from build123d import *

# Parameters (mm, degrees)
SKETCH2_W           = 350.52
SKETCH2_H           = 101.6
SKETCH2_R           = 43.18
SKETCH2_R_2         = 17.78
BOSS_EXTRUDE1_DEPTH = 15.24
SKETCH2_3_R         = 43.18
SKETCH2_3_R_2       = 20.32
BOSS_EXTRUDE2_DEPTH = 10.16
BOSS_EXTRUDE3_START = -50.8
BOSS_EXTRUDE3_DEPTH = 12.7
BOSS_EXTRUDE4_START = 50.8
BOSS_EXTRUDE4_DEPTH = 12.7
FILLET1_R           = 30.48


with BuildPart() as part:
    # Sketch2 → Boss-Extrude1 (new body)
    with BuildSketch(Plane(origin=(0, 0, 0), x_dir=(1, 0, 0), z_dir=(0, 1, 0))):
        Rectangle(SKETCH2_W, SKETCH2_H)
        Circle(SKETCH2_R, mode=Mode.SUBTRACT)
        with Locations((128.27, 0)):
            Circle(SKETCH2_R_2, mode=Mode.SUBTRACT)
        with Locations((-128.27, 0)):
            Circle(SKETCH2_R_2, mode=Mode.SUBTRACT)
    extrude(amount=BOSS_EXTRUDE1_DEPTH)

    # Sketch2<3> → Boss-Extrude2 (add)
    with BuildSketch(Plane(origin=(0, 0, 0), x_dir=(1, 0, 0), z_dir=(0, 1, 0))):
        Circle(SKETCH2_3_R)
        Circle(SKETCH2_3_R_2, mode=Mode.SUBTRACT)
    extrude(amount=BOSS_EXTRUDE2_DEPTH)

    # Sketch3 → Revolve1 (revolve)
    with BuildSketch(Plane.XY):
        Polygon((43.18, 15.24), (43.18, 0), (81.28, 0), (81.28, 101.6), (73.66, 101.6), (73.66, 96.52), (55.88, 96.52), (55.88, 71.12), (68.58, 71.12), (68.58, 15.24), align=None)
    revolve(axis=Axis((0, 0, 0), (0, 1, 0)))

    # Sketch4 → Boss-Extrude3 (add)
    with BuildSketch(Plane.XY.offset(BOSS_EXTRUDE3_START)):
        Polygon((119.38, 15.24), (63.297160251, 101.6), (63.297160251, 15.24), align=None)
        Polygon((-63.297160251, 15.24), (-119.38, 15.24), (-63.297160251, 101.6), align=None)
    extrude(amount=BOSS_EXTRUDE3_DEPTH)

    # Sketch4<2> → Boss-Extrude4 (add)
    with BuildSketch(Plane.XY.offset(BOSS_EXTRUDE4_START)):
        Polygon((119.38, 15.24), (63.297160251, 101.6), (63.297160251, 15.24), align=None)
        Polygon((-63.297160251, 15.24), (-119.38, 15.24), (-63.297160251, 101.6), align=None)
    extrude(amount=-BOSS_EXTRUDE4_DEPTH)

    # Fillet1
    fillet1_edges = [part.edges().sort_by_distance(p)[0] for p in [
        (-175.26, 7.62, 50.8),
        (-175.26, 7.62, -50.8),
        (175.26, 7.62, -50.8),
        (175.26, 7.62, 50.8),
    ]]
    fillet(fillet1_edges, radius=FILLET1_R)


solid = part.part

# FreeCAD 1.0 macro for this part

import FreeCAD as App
import Part
import Sketcher
Q = App.Units.Quantity


def edges_at(feature, points):
    """Names of the edges that pass closest to the given points."""
    edges = feature.Shape.Edges
    near = lambda p: min(range(len(edges)), key=lambda i: edges[i].distToShape(Part.Vertex(*p))[0])
    return sorted({f"Edge{near(p) + 1}" for p in points})


def add_polygon(sketch, points):
    """Adds a closed chain of lines whose ends are joined by coincident constraints."""
    first, n = sketch.GeometryCount, len(points)
    for a, b in zip(points, points[1:] + points[:1]):
        sketch.addGeometry(Part.LineSegment(App.Vector(*a, 0), App.Vector(*b, 0)), False)
    for i in range(n):
        sketch.addConstraint(Sketcher.Constraint("Coincident", first + i, 2, first + (i + 1) % n, 1))

doc = App.newDocument("Part")
body = doc.addObject("PartDesign::Body", "Body")

sketch1 = body.newObject("Sketcher::SketchObject", "Sketch")
sketch1.AttachmentSupport = (doc.getObject("XZ_Plane"), [""])
sketch1.MapMode = "FlatFace"
add_polygon(sketch1, [(-175, -51), (-175, 51), (175, 51), (175, -51)])
sketch1.addGeometry(Part.Circle(App.Vector(-128, 0, 0), App.Vector(0, 0, 1), 18), False)
sketch1.addGeometry(Part.Circle(App.Vector(0, 0, 0), App.Vector(0, 0, 1), 43), False)
sketch1.addGeometry(Part.Circle(App.Vector(128, 0, 0), App.Vector(0, 0, 1), 18), False)
sketch1.addConstraint(Sketcher.Constraint("Vertical", 0))
sketch1.addConstraint(Sketcher.Constraint("Horizontal", 1))
sketch1.addConstraint(Sketcher.Constraint("Vertical", 2))
sketch1.addConstraint(Sketcher.Constraint("Horizontal", 3))
sketch1.addConstraint(Sketcher.Constraint("Coincident", 5, 3, -1, 1))
sketch1.addConstraint(Sketcher.Constraint("Equal", 4, 6))
sketch1.addConstraint(Sketcher.Constraint("Symmetric", 4, 3, 6, 3, -1, 1))
sketch1.addConstraint(Sketcher.Constraint("Symmetric", 0, 2, 2, 2, -1, 1))
sketch1.addConstraint(Sketcher.Constraint("PointOnObject", 4, 3, -1))
sketch1.addConstraint(Sketcher.Constraint("Diameter", 4, Q("1.4 in")))
sketch1.addConstraint(Sketcher.Constraint("Diameter", 5, Q("3.4 in")))
sketch1.addConstraint(Sketcher.Constraint("DistanceY", 0, 1, 0, 2, Q("4 in")))
sketch1.addConstraint(Sketcher.Constraint("DistanceX", 1, 1, 1, 2, Q("13.8 in")))
sketch1.addConstraint(Sketcher.Constraint("DistanceX", 4, 3, 6, 3, Q("10.1 in")))
pad1 = body.newObject("PartDesign::Pad", "Pad")
pad1.Profile = sketch1
pad1.Length = Q("0.6 in")
pad1.Reversed = True

sketch2 = body.newObject("Sketcher::SketchObject", "Sketch001")
sketch2.AttachmentSupport = (doc.getObject("XZ_Plane"), [""])
sketch2.MapMode = "FlatFace"
sketch2.addGeometry(Part.Circle(App.Vector(0, 0, 0), App.Vector(0, 0, 1), 43), False)
sketch2.addGeometry(Part.Circle(App.Vector(0, 0, 0), App.Vector(0, 0, 1), 20), False)
sketch2.addConstraint(Sketcher.Constraint("Coincident", 0, 3, -1, 1))
sketch2.addConstraint(Sketcher.Constraint("Coincident", 1, 3, -1, 1))
sketch2.addConstraint(Sketcher.Constraint("Diameter", 0, Q("3.4 in")))
sketch2.addConstraint(Sketcher.Constraint("Diameter", 1, Q("1.6 in")))
pad2 = body.newObject("PartDesign::Pad", "Pad001")
pad2.Profile = sketch2
pad2.Length = Q("0.4 in")
pad2.Reversed = True

sketch3 = body.newObject("Sketcher::SketchObject", "Sketch002")
sketch3.AttachmentSupport = (doc.getObject("XY_Plane"), [""])
sketch3.MapMode = "FlatFace"
add_polygon(sketch3, [(43, 15), (43, 0), (81, 0), (81, 102), (74, 102), (74, 97), (56, 97), (56, 71), (69, 71), (69, 15)])
sketch3.addConstraint(Sketcher.Constraint("Vertical", 0))
sketch3.addConstraint(Sketcher.Constraint("Horizontal", 1))
sketch3.addConstraint(Sketcher.Constraint("Vertical", 2))
sketch3.addConstraint(Sketcher.Constraint("Horizontal", 3))
sketch3.addConstraint(Sketcher.Constraint("Vertical", 4))
sketch3.addConstraint(Sketcher.Constraint("Horizontal", 5))
sketch3.addConstraint(Sketcher.Constraint("Vertical", 6))
sketch3.addConstraint(Sketcher.Constraint("Horizontal", 7))
sketch3.addConstraint(Sketcher.Constraint("Vertical", 8))
sketch3.addConstraint(Sketcher.Constraint("Horizontal", 9))
sketch3.addConstraint(Sketcher.Constraint("PointOnObject", 0, 2, -1))
sketch3.addConstraint(Sketcher.Constraint("Equal", 9, 6))
sketch3.addConstraint(Sketcher.Constraint("DistanceX", 9, 2, 9, 1, Q("1 in")))
sketch3.addConstraint(Sketcher.Constraint("DistanceY", 2, 1, 2, 2, Q("4 in")))
sketch3.addConstraint(Sketcher.Constraint("DistanceX", 1, 1, 1, 2, Q("1.5 in")))
sketch3.addConstraint(Sketcher.Constraint("DistanceX", 3, 2, 3, 1, Q("0.3 in")))
sketch3.addConstraint(Sketcher.Constraint("DistanceX", 5, 2, 5, 1, Q("0.7 in")))
sketch3.addConstraint(Sketcher.Constraint("DistanceY", 0, 2, 0, 1, Q("0.6 in")))
sketch3.addConstraint(Sketcher.Constraint("DistanceY", 4, 2, 4, 1, Q("0.2 in")))
sketch3.addConstraint(Sketcher.Constraint("DistanceX", -1, 1, 0, 2, Q("1.7 in")))
revolution = body.newObject("PartDesign::Revolution", "Revolution")
revolution.Profile = sketch3
revolution.ReferenceAxis = (sketch3, ["V_Axis"])
revolution.Angle = 360

sketch4 = body.newObject("Sketcher::SketchObject", "Sketch003")
sketch4.AttachmentSupport = (doc.getObject("XY_Plane"), [""])
sketch4.MapMode = "FlatFace"
sketch4.AttachmentOffset = App.Placement(App.Vector(0, 0, -2 * 25.4), App.Rotation())
add_polygon(sketch4, [(119, 15), (63, 102), (63, 15)])
add_polygon(sketch4, [(-119, 15), (-63, 15), (-63, 102)])
sketch4.addConstraint(Sketcher.Constraint("Vertical", 1))
sketch4.addConstraint(Sketcher.Constraint("Horizontal", 2))
sketch4.addConstraint(Sketcher.Constraint("Horizontal", 3))
sketch4.addConstraint(Sketcher.Constraint("Vertical", 4))
sketch4.addConstraint(Sketcher.Constraint("Symmetric", 1, 2, 3, 2, -2))
sketch4.addConstraint(Sketcher.Constraint("Horizontal", 0, 2, 4, 2))
sketch4.addConstraint(Sketcher.Constraint("Equal", 2, 3))
sketch4.addConstraint(Sketcher.Constraint("DistanceY", 1, 2, 1, 1, Q("3.4 in")))
sketch4.addConstraint(Sketcher.Constraint("DistanceY", -1, 1, 0, 2, Q("4 in")))
sketch4.addConstraint(Sketcher.Constraint("Angle", 0, Q("123 deg")))
sketch4.addConstraint(Sketcher.Constraint("DistanceX", -1, 1, 2, 2, Q("4.7 in")))
pad3 = body.newObject("PartDesign::Pad", "Pad002")
pad3.Profile = sketch4
pad3.Length = Q("0.5 in")

sketch5 = body.newObject("Sketcher::SketchObject", "Sketch004")
sketch5.AttachmentSupport = (doc.getObject("XY_Plane"), [""])
sketch5.MapMode = "FlatFace"
sketch5.AttachmentOffset = App.Placement(App.Vector(0, 0, 2 * 25.4), App.Rotation())
add_polygon(sketch5, [(119, 15), (63, 102), (63, 15)])
add_polygon(sketch5, [(-119, 15), (-63, 15), (-63, 102)])
sketch5.addConstraint(Sketcher.Constraint("Vertical", 1))
sketch5.addConstraint(Sketcher.Constraint("Horizontal", 2))
sketch5.addConstraint(Sketcher.Constraint("Horizontal", 3))
sketch5.addConstraint(Sketcher.Constraint("Vertical", 4))
sketch5.addConstraint(Sketcher.Constraint("Symmetric", 1, 2, 3, 2, -2))
sketch5.addConstraint(Sketcher.Constraint("Horizontal", 0, 2, 4, 2))
sketch5.addConstraint(Sketcher.Constraint("Equal", 2, 3))
sketch5.addConstraint(Sketcher.Constraint("DistanceY", 1, 2, 1, 1, Q("3.4 in")))
sketch5.addConstraint(Sketcher.Constraint("DistanceY", -1, 1, 0, 2, Q("4 in")))
sketch5.addConstraint(Sketcher.Constraint("Angle", 0, Q("123 deg")))
sketch5.addConstraint(Sketcher.Constraint("DistanceX", -1, 1, 2, 2, Q("4.7 in")))
pad4 = body.newObject("PartDesign::Pad", "Pad003")
pad4.Profile = sketch5
pad4.Length = Q("0.5 in")
pad4.Reversed = True
doc.recompute()

fillet = body.newObject("PartDesign::Fillet", "Fillet")
fillet.Base = (pad4, edges_at(pad4, [
    (-175.26, 7.62, 50.8),
    (-175.26, 7.62, -50.8),
    (175.26, 7.62, -50.8),
    (175.26, 7.62, 50.8),
]))
fillet.Radius = Q("1.2 in")

doc.recompute()
